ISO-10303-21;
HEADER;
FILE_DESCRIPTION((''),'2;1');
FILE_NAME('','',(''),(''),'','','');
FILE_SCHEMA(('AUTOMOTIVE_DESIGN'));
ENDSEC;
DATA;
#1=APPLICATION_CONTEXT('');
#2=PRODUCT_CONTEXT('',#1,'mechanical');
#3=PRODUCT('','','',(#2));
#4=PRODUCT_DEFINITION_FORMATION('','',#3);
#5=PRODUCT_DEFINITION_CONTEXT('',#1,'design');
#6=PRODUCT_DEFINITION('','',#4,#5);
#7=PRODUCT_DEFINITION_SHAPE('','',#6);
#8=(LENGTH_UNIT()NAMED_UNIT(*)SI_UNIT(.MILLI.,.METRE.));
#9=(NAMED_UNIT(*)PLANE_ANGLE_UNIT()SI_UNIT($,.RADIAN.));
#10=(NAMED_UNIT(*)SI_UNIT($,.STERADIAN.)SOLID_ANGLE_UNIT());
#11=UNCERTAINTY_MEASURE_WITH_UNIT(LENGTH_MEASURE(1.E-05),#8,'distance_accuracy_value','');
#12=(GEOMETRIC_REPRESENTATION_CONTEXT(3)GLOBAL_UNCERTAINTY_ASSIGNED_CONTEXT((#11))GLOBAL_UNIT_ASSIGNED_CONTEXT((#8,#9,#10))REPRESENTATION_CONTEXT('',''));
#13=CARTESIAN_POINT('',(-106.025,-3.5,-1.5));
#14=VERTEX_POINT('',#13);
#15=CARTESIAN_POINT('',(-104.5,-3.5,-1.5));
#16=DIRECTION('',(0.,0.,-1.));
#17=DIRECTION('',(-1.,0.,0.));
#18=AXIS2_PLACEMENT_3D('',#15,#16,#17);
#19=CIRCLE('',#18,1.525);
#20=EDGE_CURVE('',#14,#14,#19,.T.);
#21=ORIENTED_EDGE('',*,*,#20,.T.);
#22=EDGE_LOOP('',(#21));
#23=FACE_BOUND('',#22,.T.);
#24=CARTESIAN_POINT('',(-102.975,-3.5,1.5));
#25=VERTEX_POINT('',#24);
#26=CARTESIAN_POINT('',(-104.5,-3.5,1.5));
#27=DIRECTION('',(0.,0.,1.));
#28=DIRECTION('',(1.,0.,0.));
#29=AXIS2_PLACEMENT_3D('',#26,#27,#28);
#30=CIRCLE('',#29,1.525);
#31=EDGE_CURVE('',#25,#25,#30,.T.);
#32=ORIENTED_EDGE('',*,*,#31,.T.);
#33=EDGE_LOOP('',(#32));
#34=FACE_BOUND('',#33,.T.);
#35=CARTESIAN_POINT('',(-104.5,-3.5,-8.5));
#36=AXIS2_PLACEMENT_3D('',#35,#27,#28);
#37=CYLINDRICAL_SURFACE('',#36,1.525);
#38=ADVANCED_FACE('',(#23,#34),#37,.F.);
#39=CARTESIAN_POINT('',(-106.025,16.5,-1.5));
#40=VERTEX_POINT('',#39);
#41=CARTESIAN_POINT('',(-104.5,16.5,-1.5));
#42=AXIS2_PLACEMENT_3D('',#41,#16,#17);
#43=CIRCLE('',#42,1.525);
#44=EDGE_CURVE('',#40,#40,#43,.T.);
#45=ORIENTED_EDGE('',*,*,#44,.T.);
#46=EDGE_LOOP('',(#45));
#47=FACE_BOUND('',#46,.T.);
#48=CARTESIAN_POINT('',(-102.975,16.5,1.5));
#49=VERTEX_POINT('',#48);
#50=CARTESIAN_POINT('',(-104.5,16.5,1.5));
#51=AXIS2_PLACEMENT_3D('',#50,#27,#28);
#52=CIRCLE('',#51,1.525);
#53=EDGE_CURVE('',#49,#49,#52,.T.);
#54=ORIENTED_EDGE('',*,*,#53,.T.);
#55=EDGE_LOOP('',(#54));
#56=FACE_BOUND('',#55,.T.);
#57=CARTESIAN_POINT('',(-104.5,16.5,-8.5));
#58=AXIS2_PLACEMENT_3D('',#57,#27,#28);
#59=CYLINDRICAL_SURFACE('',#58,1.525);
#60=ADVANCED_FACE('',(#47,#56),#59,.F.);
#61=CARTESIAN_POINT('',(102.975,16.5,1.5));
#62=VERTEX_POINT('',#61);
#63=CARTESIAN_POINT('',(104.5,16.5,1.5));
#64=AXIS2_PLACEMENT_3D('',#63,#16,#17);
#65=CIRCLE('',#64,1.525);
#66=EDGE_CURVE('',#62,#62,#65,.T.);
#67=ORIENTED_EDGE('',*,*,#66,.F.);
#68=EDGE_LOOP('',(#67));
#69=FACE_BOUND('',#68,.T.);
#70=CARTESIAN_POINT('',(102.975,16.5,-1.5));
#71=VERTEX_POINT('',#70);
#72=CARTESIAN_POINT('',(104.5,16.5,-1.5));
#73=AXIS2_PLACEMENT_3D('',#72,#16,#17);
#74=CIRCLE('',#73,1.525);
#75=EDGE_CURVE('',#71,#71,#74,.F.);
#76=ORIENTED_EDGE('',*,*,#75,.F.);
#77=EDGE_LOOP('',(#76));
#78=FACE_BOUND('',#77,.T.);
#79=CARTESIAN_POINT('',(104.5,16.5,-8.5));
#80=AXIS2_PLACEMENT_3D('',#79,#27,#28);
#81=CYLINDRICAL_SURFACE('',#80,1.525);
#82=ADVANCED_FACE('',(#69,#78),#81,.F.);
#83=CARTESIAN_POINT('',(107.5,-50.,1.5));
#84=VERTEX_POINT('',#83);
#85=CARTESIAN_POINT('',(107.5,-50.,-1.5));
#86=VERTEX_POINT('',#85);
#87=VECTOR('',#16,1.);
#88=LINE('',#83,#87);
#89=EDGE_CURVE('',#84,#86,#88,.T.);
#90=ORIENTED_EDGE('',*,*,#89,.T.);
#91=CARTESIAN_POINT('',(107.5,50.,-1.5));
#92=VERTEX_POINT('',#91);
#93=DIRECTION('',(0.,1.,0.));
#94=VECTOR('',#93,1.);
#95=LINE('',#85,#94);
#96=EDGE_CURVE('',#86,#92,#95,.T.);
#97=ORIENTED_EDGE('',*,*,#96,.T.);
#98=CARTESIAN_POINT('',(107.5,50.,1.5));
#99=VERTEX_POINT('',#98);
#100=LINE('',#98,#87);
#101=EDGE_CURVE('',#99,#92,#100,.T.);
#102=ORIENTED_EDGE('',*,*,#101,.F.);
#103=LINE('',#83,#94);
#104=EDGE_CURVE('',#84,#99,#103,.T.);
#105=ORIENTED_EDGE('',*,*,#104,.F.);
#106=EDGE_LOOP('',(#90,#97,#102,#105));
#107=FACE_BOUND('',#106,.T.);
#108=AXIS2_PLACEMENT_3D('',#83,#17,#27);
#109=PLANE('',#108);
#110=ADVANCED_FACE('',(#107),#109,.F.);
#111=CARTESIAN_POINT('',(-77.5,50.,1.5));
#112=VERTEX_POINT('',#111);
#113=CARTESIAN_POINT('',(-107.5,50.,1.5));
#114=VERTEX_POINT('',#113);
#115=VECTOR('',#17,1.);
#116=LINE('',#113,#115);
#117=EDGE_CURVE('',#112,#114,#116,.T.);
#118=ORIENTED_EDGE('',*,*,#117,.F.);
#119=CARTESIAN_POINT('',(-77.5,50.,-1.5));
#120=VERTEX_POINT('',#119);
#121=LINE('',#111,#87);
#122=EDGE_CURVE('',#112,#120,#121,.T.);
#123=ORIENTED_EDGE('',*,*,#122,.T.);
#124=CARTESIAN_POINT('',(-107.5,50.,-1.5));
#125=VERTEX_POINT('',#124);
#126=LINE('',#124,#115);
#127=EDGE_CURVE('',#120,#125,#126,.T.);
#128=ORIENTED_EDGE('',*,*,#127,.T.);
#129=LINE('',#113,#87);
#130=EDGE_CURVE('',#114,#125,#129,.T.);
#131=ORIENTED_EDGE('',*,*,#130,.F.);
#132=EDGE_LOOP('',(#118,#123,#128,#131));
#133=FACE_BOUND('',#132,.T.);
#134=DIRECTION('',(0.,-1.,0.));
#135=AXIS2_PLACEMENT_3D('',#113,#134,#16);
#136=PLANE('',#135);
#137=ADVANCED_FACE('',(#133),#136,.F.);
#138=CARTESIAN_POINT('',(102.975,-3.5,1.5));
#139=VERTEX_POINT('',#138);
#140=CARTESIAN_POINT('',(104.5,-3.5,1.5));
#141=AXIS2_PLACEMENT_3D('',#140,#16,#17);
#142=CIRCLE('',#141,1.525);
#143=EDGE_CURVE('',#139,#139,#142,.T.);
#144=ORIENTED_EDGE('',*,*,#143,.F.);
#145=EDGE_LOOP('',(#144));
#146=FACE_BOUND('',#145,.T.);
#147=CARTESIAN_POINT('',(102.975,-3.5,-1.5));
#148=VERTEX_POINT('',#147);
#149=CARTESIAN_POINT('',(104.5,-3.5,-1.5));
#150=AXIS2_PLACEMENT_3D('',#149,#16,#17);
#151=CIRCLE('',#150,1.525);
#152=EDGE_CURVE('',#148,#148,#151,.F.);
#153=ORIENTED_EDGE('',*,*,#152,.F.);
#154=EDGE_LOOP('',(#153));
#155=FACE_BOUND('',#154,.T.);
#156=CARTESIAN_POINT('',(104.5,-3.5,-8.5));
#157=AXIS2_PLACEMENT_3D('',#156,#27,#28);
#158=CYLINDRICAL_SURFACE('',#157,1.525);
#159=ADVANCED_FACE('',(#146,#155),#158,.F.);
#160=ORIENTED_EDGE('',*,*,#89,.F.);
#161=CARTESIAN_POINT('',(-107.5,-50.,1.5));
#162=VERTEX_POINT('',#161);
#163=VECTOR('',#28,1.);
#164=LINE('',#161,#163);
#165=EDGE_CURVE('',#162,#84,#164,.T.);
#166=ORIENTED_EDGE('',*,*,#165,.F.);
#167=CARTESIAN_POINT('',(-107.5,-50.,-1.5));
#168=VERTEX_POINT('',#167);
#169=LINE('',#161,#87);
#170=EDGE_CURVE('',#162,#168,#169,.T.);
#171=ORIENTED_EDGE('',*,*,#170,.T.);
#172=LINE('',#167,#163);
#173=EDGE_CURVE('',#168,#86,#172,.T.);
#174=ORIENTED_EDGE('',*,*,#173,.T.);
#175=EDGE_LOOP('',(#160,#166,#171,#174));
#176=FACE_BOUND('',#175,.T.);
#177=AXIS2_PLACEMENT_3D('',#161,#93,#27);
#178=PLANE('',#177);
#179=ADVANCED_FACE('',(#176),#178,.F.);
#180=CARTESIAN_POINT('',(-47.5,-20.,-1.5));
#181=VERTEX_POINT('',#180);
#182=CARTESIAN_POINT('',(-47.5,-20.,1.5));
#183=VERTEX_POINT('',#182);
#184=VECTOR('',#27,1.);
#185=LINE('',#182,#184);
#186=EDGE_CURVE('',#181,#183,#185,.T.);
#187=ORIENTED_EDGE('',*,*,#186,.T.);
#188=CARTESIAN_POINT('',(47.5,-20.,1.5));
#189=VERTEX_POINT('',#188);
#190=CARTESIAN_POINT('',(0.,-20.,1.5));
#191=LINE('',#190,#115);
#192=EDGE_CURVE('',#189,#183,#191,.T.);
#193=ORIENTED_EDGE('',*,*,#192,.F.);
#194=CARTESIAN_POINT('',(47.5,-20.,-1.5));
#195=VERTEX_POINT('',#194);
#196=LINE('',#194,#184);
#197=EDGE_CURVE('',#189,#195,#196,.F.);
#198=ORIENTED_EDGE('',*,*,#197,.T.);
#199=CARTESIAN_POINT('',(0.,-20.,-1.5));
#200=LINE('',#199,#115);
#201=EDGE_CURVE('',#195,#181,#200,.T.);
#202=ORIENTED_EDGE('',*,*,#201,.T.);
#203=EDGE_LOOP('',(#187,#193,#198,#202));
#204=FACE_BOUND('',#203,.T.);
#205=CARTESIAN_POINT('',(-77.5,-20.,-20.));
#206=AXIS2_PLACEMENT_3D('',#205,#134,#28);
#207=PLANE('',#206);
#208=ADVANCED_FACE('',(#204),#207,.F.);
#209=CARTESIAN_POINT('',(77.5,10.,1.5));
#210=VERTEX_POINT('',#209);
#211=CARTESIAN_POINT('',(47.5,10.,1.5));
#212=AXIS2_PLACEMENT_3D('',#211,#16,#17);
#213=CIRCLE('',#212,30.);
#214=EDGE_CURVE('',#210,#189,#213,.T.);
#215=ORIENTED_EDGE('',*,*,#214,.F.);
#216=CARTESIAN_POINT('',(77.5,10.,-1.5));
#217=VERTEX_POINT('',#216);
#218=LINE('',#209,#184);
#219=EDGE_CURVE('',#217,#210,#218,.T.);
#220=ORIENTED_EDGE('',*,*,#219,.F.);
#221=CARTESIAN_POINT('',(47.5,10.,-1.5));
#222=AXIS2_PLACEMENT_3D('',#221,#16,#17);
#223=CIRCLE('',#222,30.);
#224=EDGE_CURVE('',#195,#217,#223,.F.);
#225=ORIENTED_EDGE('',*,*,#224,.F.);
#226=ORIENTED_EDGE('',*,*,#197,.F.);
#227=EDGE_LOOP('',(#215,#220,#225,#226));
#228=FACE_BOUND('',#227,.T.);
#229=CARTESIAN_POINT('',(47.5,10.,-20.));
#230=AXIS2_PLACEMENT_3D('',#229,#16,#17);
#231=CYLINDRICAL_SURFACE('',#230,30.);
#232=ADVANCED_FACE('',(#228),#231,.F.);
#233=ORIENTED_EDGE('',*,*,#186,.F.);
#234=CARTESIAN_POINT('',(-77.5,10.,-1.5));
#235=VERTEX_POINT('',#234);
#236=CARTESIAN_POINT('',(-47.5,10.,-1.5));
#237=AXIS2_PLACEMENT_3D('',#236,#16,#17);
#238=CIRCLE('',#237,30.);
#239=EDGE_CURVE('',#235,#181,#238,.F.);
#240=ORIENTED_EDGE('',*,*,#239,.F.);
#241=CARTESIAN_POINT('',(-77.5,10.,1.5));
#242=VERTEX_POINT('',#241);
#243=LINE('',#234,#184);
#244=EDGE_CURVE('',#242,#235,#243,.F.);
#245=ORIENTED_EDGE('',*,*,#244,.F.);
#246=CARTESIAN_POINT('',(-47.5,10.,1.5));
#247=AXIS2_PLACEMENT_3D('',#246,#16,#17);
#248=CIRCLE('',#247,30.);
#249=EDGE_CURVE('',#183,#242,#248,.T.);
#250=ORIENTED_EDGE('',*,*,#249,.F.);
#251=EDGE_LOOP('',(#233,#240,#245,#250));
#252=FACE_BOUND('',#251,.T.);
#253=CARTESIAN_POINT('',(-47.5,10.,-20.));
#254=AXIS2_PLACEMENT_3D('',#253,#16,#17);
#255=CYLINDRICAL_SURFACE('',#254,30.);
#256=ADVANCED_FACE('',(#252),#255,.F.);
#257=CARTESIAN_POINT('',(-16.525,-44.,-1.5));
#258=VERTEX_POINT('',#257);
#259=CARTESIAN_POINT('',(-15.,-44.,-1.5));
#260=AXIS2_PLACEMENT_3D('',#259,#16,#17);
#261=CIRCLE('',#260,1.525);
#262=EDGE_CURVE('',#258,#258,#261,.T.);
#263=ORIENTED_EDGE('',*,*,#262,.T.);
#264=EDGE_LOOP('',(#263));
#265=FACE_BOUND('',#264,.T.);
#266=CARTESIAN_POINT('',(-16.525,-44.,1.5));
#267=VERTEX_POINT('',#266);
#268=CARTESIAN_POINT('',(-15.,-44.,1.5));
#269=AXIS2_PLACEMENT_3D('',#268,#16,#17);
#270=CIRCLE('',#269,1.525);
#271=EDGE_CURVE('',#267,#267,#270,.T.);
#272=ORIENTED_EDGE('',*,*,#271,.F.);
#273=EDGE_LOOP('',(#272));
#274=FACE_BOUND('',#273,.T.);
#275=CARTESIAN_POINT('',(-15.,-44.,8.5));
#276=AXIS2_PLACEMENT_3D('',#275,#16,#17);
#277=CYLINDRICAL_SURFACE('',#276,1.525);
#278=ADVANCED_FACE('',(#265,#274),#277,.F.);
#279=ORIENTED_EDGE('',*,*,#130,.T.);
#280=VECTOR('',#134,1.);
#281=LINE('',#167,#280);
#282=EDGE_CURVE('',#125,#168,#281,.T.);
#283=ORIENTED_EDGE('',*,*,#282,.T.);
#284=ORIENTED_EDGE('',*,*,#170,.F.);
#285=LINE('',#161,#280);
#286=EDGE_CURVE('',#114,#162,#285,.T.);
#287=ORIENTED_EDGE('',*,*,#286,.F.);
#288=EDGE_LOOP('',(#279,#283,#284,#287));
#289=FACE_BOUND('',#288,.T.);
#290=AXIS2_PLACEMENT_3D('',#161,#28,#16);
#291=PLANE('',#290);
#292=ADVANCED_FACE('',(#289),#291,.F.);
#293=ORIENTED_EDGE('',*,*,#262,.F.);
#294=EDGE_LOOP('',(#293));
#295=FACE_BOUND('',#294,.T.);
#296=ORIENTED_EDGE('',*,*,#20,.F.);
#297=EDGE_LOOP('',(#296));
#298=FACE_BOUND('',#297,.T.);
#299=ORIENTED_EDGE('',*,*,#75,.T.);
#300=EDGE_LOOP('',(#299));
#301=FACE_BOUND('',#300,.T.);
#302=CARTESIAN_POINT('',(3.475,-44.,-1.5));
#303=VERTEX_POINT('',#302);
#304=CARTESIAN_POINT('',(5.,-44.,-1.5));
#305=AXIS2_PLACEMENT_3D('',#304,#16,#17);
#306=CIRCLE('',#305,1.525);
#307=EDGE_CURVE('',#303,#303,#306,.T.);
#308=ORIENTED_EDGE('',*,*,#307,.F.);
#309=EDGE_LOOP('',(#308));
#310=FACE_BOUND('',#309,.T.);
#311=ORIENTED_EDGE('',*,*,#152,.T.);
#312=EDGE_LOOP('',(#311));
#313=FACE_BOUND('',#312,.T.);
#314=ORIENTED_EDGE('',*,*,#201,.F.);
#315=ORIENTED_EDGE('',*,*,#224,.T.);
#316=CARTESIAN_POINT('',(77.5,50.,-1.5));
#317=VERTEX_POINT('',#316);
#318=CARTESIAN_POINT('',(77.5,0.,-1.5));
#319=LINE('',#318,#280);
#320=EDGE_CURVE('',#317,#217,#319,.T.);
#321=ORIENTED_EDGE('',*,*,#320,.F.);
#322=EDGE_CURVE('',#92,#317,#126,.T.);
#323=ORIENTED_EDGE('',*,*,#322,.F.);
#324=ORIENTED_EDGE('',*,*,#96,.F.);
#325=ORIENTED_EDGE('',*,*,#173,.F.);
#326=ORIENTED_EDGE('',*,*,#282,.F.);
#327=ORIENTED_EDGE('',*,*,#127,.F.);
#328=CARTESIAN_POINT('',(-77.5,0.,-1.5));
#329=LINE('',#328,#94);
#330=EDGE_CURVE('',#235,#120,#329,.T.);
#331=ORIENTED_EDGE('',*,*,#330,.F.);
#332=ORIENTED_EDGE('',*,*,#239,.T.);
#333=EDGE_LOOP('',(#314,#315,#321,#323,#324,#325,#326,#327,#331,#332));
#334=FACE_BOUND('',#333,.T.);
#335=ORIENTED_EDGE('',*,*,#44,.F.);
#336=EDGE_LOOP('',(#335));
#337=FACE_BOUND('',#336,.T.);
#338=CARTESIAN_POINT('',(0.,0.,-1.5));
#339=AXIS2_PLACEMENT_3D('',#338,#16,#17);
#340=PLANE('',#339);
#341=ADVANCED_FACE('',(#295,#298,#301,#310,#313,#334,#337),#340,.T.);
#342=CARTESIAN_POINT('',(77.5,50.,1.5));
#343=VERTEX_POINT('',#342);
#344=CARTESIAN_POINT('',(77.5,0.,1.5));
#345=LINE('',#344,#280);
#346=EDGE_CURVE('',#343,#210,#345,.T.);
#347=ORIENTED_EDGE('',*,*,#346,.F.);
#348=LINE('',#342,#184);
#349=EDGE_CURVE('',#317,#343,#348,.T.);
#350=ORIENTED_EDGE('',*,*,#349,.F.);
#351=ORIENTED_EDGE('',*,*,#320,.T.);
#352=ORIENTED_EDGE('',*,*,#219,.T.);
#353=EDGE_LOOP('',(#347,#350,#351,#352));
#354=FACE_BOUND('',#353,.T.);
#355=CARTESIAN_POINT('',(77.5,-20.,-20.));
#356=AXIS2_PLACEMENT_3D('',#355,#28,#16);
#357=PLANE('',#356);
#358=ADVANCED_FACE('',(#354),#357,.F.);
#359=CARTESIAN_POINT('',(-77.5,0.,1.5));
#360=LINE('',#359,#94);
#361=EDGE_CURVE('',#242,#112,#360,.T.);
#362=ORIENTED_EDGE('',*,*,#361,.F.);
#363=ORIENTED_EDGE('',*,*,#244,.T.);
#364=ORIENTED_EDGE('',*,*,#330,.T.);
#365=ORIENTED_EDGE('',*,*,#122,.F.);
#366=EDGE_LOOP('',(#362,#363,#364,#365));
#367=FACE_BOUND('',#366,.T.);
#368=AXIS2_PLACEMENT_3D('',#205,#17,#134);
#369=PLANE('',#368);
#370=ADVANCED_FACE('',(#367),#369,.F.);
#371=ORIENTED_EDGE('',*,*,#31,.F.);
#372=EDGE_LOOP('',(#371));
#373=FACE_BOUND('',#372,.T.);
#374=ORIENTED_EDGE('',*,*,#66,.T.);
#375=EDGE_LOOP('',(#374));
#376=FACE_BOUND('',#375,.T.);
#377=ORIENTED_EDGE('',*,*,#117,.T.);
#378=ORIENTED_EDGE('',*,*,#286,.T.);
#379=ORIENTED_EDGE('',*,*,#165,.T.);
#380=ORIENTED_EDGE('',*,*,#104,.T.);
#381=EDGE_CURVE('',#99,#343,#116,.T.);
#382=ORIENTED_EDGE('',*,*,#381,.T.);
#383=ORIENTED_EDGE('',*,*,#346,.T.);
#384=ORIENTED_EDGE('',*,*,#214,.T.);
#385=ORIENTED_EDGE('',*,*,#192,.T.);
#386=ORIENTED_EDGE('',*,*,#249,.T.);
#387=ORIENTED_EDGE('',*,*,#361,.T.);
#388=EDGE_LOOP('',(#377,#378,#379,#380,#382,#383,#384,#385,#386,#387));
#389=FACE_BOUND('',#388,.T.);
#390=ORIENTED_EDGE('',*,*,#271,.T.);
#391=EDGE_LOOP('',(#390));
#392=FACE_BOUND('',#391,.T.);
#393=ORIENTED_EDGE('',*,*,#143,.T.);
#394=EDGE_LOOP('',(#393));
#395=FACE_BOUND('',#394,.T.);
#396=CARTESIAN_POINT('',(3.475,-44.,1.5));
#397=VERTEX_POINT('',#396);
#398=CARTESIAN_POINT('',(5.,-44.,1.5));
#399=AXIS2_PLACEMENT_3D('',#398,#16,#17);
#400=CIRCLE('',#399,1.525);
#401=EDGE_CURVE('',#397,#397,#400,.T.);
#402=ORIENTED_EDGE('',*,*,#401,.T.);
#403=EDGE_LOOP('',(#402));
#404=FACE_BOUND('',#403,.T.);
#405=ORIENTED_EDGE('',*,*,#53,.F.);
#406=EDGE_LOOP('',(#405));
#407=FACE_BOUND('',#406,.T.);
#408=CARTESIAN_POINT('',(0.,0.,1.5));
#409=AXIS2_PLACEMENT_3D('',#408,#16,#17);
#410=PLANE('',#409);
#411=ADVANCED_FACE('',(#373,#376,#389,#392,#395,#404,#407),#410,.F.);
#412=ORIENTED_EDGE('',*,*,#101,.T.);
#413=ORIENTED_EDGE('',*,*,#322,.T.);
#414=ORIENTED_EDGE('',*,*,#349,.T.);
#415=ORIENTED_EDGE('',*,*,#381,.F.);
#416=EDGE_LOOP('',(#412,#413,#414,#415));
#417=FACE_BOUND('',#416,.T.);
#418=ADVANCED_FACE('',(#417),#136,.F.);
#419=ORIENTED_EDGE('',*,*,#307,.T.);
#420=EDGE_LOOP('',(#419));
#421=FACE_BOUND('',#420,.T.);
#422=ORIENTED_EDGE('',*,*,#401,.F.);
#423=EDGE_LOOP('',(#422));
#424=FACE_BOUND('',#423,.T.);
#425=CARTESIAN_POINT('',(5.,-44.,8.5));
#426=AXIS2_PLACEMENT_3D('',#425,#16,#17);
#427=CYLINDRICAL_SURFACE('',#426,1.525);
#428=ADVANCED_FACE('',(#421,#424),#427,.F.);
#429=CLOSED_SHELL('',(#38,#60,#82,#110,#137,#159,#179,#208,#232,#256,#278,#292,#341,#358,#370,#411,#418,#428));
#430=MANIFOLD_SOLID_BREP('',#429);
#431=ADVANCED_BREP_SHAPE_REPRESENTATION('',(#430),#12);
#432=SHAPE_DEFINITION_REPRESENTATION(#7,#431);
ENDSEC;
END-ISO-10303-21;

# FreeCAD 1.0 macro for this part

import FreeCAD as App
import Part
import Sketcher

V = App.Vector
Q = App.Units.Quantity


def edges_at(feature, points):
    """Names of the edges that pass closest to the given points."""
    edges = feature.Shape.Edges
    near = lambda p: min(range(len(edges)), key=lambda i: edges[i].distToShape(Part.Vertex(*p))[0])
    return sorted({f"Edge{near(p) + 1}" for p in points})

doc = App.newDocument("Part")
params = doc.addObject("Spreadsheet::Sheet", "Params")
for row, (alias, value) in enumerate([
    ("sketch1_width", "215 mm"),
    ("sketch1_height", "100 mm"),
    ("pad1_length", "3 mm"),
    ("sketch2_width", "155 mm"),
    ("sketch2_height", "140 mm"),
    ("pocket1_length", "43 mm"),
    ("fillet_radius", "30 mm"),
    ("sketch3_diameter", "3.05 mm"),
    ("pocket2_length", "10 mm"),
    ("sketch4_diameter", "3.05 mm"),
    ("pocket3_length", "10 mm"),
], start=1):
    params.set(f"A{row}", alias)
    params.set(f"B{row}", "=" + value)
    params.setAlias(f"B{row}", alias)

body = doc.addObject("PartDesign::Body", "Body")

# Sketch on XY plane
sketch1 = body.newObject("Sketcher::SketchObject", "Sketch")
sketch1.AttachmentSupport = (doc.getObject("XY_Plane"), [""])
sketch1.MapMode = "FlatFace"
sketch1.addGeometry([
    Part.LineSegment(V(-108, 50, 0), V(-108, -50, 0)),
    Part.LineSegment(V(-108, -50, 0), V(108, -50, 0)),
    Part.LineSegment(V(108, -50, 0), V(108, 50, 0)),
    Part.LineSegment(V(108, 50, 0), V(-108, 50, 0)),
], False)
sketch1.addConstraint([
    Sketcher.Constraint("Coincident", 0, 2, 1, 1),
    Sketcher.Constraint("Coincident", 1, 2, 2, 1),
    Sketcher.Constraint("Coincident", 2, 2, 3, 1),
    Sketcher.Constraint("Coincident", 3, 2, 0, 1),
    Sketcher.Constraint("Vertical", 0),
    Sketcher.Constraint("Horizontal", 1),
    Sketcher.Constraint("Vertical", 2),
    Sketcher.Constraint("Horizontal", 3),
    Sketcher.Constraint("Symmetric", 0, 2, 2, 2, -1, 1),
    Sketcher.Constraint("DistanceX", 1, 1, 1, 2, Q("215 mm")),
    Sketcher.Constraint("DistanceY", 0, 2, 0, 1, Q("100 mm")),
])
sketch1.setExpression("Constraints[9]", "Params.sketch1_width")
sketch1.setExpression("Constraints[10]", "Params.sketch1_height")
pad1 = body.newObject("PartDesign::Pad", "Pad")
pad1.Profile = sketch1
pad1.setExpression("Length", "Params.pad1_length")
pad1.Midplane = True

# Sketch on XY plane
sketch2 = body.newObject("Sketcher::SketchObject", "Sketch001")
sketch2.AttachmentSupport = (doc.getObject("XY_Plane"), [""])
sketch2.MapMode = "FlatFace"
sketch2.AttachmentOffset = App.Placement(V(0, 0, 1.5), App.Rotation())
sketch2.addGeometry([
    Part.LineSegment(V(-78, 120, 0), V(-78, -20, 0)),
    Part.LineSegment(V(-78, -20, 0), V(78, -20, 0)),
    Part.LineSegment(V(78, -20, 0), V(78, 120, 0)),
    Part.LineSegment(V(78, 120, 0), V(-78, 120, 0)),
], False)
sketch2.addConstraint([
    Sketcher.Constraint("Coincident", 0, 2, 1, 1),
    Sketcher.Constraint("Coincident", 1, 2, 2, 1),
    Sketcher.Constraint("Coincident", 2, 2, 3, 1),
    Sketcher.Constraint("Coincident", 3, 2, 0, 1),
    Sketcher.Constraint("Vertical", 0),
    Sketcher.Constraint("Horizontal", 1),
    Sketcher.Constraint("Vertical", 2),
    Sketcher.Constraint("Horizontal", 3),
    Sketcher.Constraint("DistanceX", 1, 1, 1, 2, Q("155 mm")),
    Sketcher.Constraint("DistanceY", 0, 2, 0, 1, Q("140 mm")),
    Sketcher.Constraint("DistanceY", 0, 2, -1, 1, Q("20 mm")),
    Sketcher.Constraint("DistanceX", 0, 2, -1, 1, Q("77.5 mm")),
])
sketch2.setExpression("Constraints[8]", "Params.sketch2_width")
sketch2.setExpression("Constraints[9]", "Params.sketch2_height")
pocket1 = body.newObject("PartDesign::Pocket", "Pocket")
pocket1.Profile = sketch2
pocket1.setExpression("Length", "Params.pocket1_length")
pocket1.Midplane = True
doc.recompute()

fillet = body.newObject("PartDesign::Fillet", "Fillet")
fillet.Base = (pocket1, edges_at(pocket1, [(77.5, -20, 0), (-77.5, -20, 0)]))
fillet.setExpression("Radius", "Params.fillet_radius")

# Sketch on XY plane
sketch3 = body.newObject("Sketcher::SketchObject", "Sketch002")
sketch3.AttachmentSupport = (doc.getObject("XY_Plane"), [""])
sketch3.MapMode = "FlatFace"
sketch3.AttachmentOffset = App.Placement(V(0, 0, -1.5), App.Rotation())
sketch3.addGeometry([
    Part.Circle(V(5, -44, 0), V(0, 0, 1), 1.5),
    Part.Circle(V(-15, -44, 0), V(0, 0, 1), 1.5),
], False)
sketch3.addConstraint([
    Sketcher.Constraint("Equal", 0, 1),
    Sketcher.Constraint("Horizontal", 0, 3, 1, 3),
    Sketcher.Constraint("Diameter", 0, Q("3.05 mm")),
    Sketcher.Constraint("DistanceX", -1, 1, 0, 3, Q("5 mm")),
    Sketcher.Constraint("DistanceY", 0, 3, -1, 1, Q("44 mm")),
    Sketcher.Constraint("DistanceX", 1, 3, -1, 1, Q("15 mm")),
])
sketch3.setExpression("Constraints[2]", "Params.sketch3_diameter")
pocket2 = body.newObject("PartDesign::Pocket", "Pocket001")
pocket2.Profile = sketch3
pocket2.setExpression("Length", "Params.pocket2_length")
pocket2.Reversed = True

# Sketch on XY plane
sketch4 = body.newObject("Sketcher::SketchObject", "Sketch003")
sketch4.AttachmentSupport = (doc.getObject("XY_Plane"), [""])
sketch4.MapMode = "FlatFace"
sketch4.AttachmentOffset = App.Placement(V(0, 0, 1.5), App.Rotation())
sketch4.addGeometry([
    Part.Circle(V(-104.5, 16.5, 0), V(0, 0, 1), 1.5),
    Part.Circle(V(-104.5, -3.5, 0), V(0, 0, 1), 1.5),
], False)
sketch4.addConstraint([
    Sketcher.Constraint("Equal", 0, 1),
    Sketcher.Constraint("Vertical", 0, 3, 1, 3),
    Sketcher.Constraint("Diameter", 0, Q("3.05 mm")),
    Sketcher.Constraint("DistanceY", 1, 3, 0, 3, Q("20 mm")),
    Sketcher.Constraint("DistanceX", 0, 3, -1, 1, Q("104.5 mm")),
    Sketcher.Constraint("DistanceY", -1, 1, 0, 3, Q("16.5 mm")),
])
sketch4.setExpression("Constraints[2]", "Params.sketch4_diameter")
pocket3 = body.newObject("PartDesign::Pocket", "Pocket002")
pocket3.Profile = sketch4
pocket3.setExpression("Length", "Params.pocket3_length")
doc.recompute()

mirrored = body.newObject("PartDesign::Mirrored", "Mirrored")
mirrored.Originals = [pocket3]
mirrored.MirrorPlane = (doc.getObject("YZ_Plane"), [""])
body.Tip = mirrored

doc.recompute()
